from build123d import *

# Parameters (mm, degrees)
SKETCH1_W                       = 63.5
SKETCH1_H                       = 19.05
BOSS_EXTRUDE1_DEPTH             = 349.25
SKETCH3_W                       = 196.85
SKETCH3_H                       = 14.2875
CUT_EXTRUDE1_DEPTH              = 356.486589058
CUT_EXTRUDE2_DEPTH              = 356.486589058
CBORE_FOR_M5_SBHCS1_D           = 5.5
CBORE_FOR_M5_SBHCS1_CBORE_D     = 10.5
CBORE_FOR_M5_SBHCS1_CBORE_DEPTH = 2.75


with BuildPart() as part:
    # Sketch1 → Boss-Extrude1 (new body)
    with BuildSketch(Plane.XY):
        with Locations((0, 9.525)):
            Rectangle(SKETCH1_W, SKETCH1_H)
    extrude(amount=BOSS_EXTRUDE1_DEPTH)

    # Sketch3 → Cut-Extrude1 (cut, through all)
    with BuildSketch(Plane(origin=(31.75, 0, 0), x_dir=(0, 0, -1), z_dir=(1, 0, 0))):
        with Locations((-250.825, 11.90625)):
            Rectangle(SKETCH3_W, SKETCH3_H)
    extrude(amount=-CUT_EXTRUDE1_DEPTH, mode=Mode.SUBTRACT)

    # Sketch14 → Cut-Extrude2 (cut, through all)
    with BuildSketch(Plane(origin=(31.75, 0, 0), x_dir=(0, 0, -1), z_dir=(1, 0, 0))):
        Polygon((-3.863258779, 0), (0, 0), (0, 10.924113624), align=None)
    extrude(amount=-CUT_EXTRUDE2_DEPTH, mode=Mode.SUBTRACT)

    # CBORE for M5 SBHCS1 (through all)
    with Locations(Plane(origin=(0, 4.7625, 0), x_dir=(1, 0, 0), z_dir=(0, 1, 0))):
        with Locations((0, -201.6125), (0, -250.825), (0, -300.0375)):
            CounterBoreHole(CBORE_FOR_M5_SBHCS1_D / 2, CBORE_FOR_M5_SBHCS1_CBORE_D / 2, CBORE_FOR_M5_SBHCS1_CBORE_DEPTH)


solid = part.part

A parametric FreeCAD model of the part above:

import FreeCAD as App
import Part
import Sketcher

V = App.Vector
Q = App.Units.Quantity


def add_polygon(sketch, points):
    """Adds a closed chain of lines whose ends are joined by coincident constraints."""
    first, n = sketch.GeometryCount, len(points)
    for a, b in zip(points, points[1:] + points[:1]):
        sketch.addGeometry(Part.LineSegment(App.Vector(*a, 0), App.Vector(*b, 0)), False)
    for i in range(n):
        sketch.addConstraint(Sketcher.Constraint("Coincident", first + i, 2, first + (i + 1) % n, 1))

doc = App.newDocument("Part")
params = doc.addObject("Spreadsheet::Sheet", "Params")
for row, (alias, value) in enumerate([
    ("sketch1_width", "2.5 in"),
    ("sketch1_height", "0.75 in"),
    ("pad1_length", "13.75 in"),
    ("sketch2_height", "7.75 in"),
    ("sketch2_width", "0.5625 in"),
    ("hole_diameter", "5.5 mm"),
    ("hole_cbore_diameter", "10.5 mm"),
    ("hole_cbore_depth", "2.75 mm"),
], start=1):
    params.set(f"A{row}", alias)
    params.set(f"B{row}", "=" + value)
    params.setAlias(f"B{row}", alias)

body = doc.addObject("PartDesign::Body", "Body")

sketch1 = body.newObject("Sketcher::SketchObject", "Sketch")
sketch1.AttachmentSupport = (doc.getObject("XY_Plane"), [""])
sketch1.MapMode = "FlatFace"
add_polygon(sketch1, [(-32, 19), (-32, 0), (32, 0), (32, 19)])
sketch1.addConstraint(Sketcher.Constraint("Vertical", 0))
sketch1.addConstraint(Sketcher.Constraint("Horizontal", 1))
sketch1.addConstraint(Sketcher.Constraint("Vertical", 2))
sketch1.addConstraint(Sketcher.Constraint("Horizontal", 3))
sketch1.addConstraint(Sketcher.Constraint("Symmetric", 0, 2, 1, 2, -1, 1))
sketch1.addConstraint(Sketcher.Constraint("DistanceX", 1, 1, 1, 2, Q("2.5 in")))
sketch1.addConstraint(Sketcher.Constraint("DistanceY", 0, 2, 0, 1, Q("0.75 in")))
sketch1.setExpression("Constraints[9]", "Params.sketch1_width")
sketch1.setExpression("Constraints[10]", "Params.sketch1_height")
pad1 = body.newObject("PartDesign::Pad", "Pad")
pad1.Profile = sketch1
pad1.setExpression("Length", "Params.pad1_length")

sketch2 = body.newObject("Sketcher::SketchObject", "Sketch001")
sketch2.AttachmentSupport = (doc.getObject("YZ_Plane"), [""])
sketch2.MapMode = "FlatFace"
sketch2.AttachmentOffset = App.Placement(V(0, 0, 1.25 * 25.4), App.Rotation())
add_polygon(sketch2, [(19, 349), (5, 349), (5, 152), (19, 152)])
sketch2.addConstraint(Sketcher.Constraint("Horizontal", 0))
sketch2.addConstraint(Sketcher.Constraint("Vertical", 1))
sketch2.addConstraint(Sketcher.Constraint("Horizontal", 2))
sketch2.addConstraint(Sketcher.Constraint("Vertical", 3))
sketch2.addConstraint(Sketcher.Constraint("DistanceY", -1, 1, 1, 2, Q("6 in")))
sketch2.addConstraint(Sketcher.Constraint("DistanceY", 1, 2, 1, 1, Q("7.75 in")))
sketch2.addConstraint(Sketcher.Constraint("DistanceX", 0, 2, 0, 1, Q("0.5625 in")))
sketch2.addConstraint(Sketcher.Constraint("DistanceX", -1, 1, 2, 2, Q("0.75 in")))
sketch2.setExpression("Constraints[9]", "Params.sketch2_height")
sketch2.setExpression("Constraints[10]", "Params.sketch2_width")
pocket1 = body.newObject("PartDesign::Pocket", "Pocket")
pocket1.Profile = sketch2
pocket1.Type = "ThroughAll"

sketch3 = body.newObject("Sketcher::SketchObject", "Sketch002")
sketch3.AttachmentSupport = (doc.getObject("YZ_Plane"), [""])
sketch3.MapMode = "FlatFace"
sketch3.AttachmentOffset = App.Placement(V(0, 0, 1.25 * 25.4), App.Rotation())
add_polygon(sketch3, [(0, 3.9), (0, 0), (10.9, 0)])
sketch3.addConstraint(Sketcher.Constraint("Vertical", 0))
sketch3.addConstraint(Sketcher.Constraint("Horizontal", 1))
sketch3.addConstraint(Sketcher.Constraint("Coincident", 0, 2, -1, 1))
sketch3.addConstraint(Sketcher.Constraint("DistanceY", 0, 2, 0, 1, 3.863259))
sketch3.addConstraint(Sketcher.Constraint("DistanceX", 1, 1, 1, 2, 10.924114))
pocket2 = body.newObject("PartDesign::Pocket", "Pocket001")
pocket2.Profile = sketch3
pocket2.Type = "ThroughAll"

sketch4 = body.newObject("Sketcher::SketchObject", "Sketch003")
sketch4.AttachmentSupport = (doc.getObject("XZ_Plane"), [""])
sketch4.MapMode = "FlatFace"
sketch4.AttachmentOffset = App.Placement(V(0, 0, -0.1875 * 25.4), App.Rotation())
sketch4.addGeometry(Part.Circle(V(0, 201.6, 0), V(0, 0, 1), 2.8), False)
sketch4.addGeometry(Part.Circle(V(0, 250.8, 0), V(0, 0, 1), 2.8), False)
sketch4.addGeometry(Part.Circle(V(0, 300, 0), V(0, 0, 1), 2.8), False)
sketch4.addConstraint(Sketcher.Constraint("Equal", 0, 1))
sketch4.addConstraint(Sketcher.Constraint("Equal", 1, 2))
sketch4.addConstraint(Sketcher.Constraint("PointOnObject", 0, 3, -2))
sketch4.addConstraint(Sketcher.Constraint("PointOnObject", 1, 3, -2))
sketch4.addConstraint(Sketcher.Constraint("PointOnObject", 2, 3, -2))
sketch4.addConstraint(Sketcher.Constraint("Diameter", 0, 5.5))
sketch4.addConstraint(Sketcher.Constraint("DistanceY", -1, 1, 0, 3, Q("7.9375 in")))
sketch4.addConstraint(Sketcher.Constraint("DistanceY", -1, 1, 1, 3, Q("9.875 in")))
sketch4.addConstraint(Sketcher.Constraint("DistanceY", -1, 1, 2, 3, Q("11.8125 in")))
doc.recompute()
hole = body.newObject("PartDesign::Hole", "Hole")
hole.Profile = sketch4
hole.ThreadType = "None"
hole.setExpression("Diameter", "Params.hole_diameter")
hole.DepthType = "ThroughAll"
hole.HoleCutType = "Counterbore"
hole.setExpression("HoleCutDiameter", "Params.hole_cbore_diameter")
hole.setExpression("HoleCutDepth", "Params.hole_cbore_depth")
hole.Reversed = True

doc.recompute()
